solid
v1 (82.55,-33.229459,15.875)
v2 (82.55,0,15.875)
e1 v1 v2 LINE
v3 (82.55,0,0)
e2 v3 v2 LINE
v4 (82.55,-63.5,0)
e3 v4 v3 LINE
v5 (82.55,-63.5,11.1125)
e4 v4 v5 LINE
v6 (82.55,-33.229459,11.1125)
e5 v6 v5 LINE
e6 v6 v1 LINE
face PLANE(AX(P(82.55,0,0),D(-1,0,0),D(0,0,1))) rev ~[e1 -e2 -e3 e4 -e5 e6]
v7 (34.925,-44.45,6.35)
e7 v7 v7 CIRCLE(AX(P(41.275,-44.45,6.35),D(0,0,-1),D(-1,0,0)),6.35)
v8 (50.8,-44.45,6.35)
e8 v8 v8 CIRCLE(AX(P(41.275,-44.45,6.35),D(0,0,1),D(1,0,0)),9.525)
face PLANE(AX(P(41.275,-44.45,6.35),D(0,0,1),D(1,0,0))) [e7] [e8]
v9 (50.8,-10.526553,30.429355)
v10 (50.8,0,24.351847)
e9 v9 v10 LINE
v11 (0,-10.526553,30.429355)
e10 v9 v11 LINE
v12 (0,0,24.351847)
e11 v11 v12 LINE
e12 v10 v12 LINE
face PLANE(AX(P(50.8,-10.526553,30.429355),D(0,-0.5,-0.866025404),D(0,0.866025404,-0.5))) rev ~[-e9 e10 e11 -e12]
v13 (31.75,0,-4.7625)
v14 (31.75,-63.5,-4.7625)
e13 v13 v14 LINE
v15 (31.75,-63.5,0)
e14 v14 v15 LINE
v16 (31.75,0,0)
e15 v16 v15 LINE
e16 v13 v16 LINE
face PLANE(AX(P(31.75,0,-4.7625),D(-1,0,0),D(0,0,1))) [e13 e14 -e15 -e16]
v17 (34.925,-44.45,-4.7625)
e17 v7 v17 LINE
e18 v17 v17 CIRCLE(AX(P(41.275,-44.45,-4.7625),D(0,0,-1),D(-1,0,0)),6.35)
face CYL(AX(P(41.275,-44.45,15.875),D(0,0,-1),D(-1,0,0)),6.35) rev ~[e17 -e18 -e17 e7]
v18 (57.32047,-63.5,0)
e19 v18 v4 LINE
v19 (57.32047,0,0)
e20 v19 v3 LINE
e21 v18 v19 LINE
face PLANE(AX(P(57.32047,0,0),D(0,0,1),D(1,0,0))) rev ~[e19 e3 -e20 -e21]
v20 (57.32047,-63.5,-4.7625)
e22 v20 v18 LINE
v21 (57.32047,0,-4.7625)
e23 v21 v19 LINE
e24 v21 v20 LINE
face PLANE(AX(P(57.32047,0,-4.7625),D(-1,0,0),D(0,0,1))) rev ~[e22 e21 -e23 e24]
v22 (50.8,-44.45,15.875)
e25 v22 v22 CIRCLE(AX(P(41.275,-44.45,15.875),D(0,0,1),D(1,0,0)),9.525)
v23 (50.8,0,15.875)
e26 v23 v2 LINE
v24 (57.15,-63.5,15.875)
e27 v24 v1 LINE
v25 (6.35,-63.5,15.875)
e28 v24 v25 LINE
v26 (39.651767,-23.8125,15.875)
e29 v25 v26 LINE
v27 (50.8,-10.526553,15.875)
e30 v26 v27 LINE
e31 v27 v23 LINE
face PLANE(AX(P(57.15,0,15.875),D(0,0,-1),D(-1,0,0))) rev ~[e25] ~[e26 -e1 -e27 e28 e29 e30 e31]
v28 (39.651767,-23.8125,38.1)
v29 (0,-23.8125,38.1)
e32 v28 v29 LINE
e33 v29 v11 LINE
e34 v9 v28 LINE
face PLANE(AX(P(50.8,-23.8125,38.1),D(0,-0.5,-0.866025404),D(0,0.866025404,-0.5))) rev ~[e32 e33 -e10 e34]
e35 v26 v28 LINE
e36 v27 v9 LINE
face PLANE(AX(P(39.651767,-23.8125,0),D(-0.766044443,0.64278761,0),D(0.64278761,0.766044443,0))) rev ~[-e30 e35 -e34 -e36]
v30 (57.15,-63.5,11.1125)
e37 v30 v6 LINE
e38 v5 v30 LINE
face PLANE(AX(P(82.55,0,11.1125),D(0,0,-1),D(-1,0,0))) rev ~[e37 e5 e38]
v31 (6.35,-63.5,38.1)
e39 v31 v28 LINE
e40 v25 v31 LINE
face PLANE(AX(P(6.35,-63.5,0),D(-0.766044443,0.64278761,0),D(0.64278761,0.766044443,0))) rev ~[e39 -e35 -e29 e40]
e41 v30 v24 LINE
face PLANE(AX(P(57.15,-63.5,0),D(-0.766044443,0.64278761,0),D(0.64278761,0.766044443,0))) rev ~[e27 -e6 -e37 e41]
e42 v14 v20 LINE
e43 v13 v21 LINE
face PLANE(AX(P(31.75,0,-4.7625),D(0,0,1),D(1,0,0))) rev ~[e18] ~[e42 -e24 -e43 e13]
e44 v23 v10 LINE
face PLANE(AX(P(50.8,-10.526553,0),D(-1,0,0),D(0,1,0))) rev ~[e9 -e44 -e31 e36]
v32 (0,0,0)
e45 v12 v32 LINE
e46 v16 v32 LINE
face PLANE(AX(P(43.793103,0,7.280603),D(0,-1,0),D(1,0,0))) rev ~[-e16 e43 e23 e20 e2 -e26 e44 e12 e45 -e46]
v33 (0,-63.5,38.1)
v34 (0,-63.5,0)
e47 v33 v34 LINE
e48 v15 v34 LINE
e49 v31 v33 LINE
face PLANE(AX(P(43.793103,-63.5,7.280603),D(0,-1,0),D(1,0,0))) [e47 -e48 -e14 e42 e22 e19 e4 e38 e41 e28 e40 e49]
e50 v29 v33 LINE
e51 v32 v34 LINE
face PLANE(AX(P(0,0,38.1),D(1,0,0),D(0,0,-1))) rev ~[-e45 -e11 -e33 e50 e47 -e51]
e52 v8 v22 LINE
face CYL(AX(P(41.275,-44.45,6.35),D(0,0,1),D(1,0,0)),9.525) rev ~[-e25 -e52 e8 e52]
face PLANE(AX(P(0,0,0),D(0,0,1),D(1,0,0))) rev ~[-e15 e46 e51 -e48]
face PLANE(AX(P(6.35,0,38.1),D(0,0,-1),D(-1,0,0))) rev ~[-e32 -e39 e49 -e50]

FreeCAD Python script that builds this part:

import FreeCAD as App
import Part
import Sketcher
Q = App.Units.Quantity

doc = App.newDocument("Part")
body = doc.addObject("PartDesign::Body", "Body")

# Sketch on XZ plane
sketch1 = body.newObject("Sketcher::SketchObject", "Sketch")
sketch1.AttachmentSupport = (doc.getObject("XZ_Plane"), [""])
sketch1.MapMode = "FlatFace"
sketch1.addGeometry([
    Part.LineSegment(App.Vector(82.5, 0, 0), App.Vector(82.5, 11.1, 0)),  # 0
    Part.LineSegment(App.Vector(82.5, 11.1, 0), App.Vector(57.1, 11.1, 0)),  # 1
    Part.LineSegment(App.Vector(57.1, 11.1, 0), App.Vector(57.1, 15.9, 0)),  # 2
    Part.LineSegment(App.Vector(57.1, 15.9, 0), App.Vector(6.3, 15.9, 0)),  # 3
    Part.LineSegment(App.Vector(6.3, 15.9, 0), App.Vector(6.3, 38.1, 0)),  # 4
    Part.LineSegment(App.Vector(6.3, 38.1, 0), App.Vector(0, 38.1, 0)),  # 5
    Part.LineSegment(App.Vector(0, 38.1, 0), App.Vector(0, 0, 0)),  # 6
    Part.LineSegment(App.Vector(0, 0, 0), App.Vector(31.8, 0, 0)),  # 7
    Part.LineSegment(App.Vector(31.8, 0, 0), App.Vector(31.8, -4.8, 0)),  # 8
    Part.LineSegment(App.Vector(31.8, -4.8, 0), App.Vector(57.3, -4.8, 0)),  # 9
    Part.LineSegment(App.Vector(57.3, -4.8, 0), App.Vector(57.3, 0, 0)),  # 10
    Part.LineSegment(App.Vector(57.3, 0, 0), App.Vector(82.5, 0, 0)),  # 11
], False)
sketch1.addConstraint([
    Sketcher.Constraint("Coincident", 0, 2, 1, 1),
    Sketcher.Constraint("Coincident", 1, 2, 2, 1),
    Sketcher.Constraint("Coincident", 2, 2, 3, 1),
    Sketcher.Constraint("Coincident", 3, 2, 4, 1),
    Sketcher.Constraint("Coincident", 4, 2, 5, 1),
    Sketcher.Constraint("Coincident", 5, 2, 6, 1),
    Sketcher.Constraint("Coincident", 6, 2, 7, 1),
    Sketcher.Constraint("Coincident", 7, 2, 8, 1),
    Sketcher.Constraint("Coincident", 8, 2, 9, 1),
    Sketcher.Constraint("Coincident", 9, 2, 10, 1),
    Sketcher.Constraint("Coincident", 10, 2, 11, 1),
    Sketcher.Constraint("Coincident", 11, 2, 0, 1),
    Sketcher.Constraint("Vertical", 0),
    Sketcher.Constraint("Horizontal", 1),
    Sketcher.Constraint("Vertical", 2),
    Sketcher.Constraint("Horizontal", 3),
    Sketcher.Constraint("Vertical", 4),
    Sketcher.Constraint("Horizontal", 5),
    Sketcher.Constraint("Vertical", 6),
    Sketcher.Constraint("Horizontal", 7),
    Sketcher.Constraint("Vertical", 8),
    Sketcher.Constraint("Horizontal", 9),
    Sketcher.Constraint("Vertical", 10),
    Sketcher.Constraint("Horizontal", 11),
    Sketcher.Constraint("Coincident", 6, 2, -1, 1),
    Sketcher.Constraint("PointOnObject", 10, 2, -1),
    Sketcher.Constraint("Equal", 2, 8),
    Sketcher.Constraint("DistanceX", 1, 2, 1, 1, Q("1 in")),
    Sketcher.Constraint("DistanceX", 3, 2, 3, 1, Q("2 in")),
    Sketcher.Constraint("DistanceY", 6, 2, 6, 1, Q("1.5 in")),
    Sketcher.Constraint("DistanceX", 7, 2, 1, 2, Q("1 in")),
    Sketcher.Constraint("DistanceX", 5, 2, 5, 1, Q("0.25 in")),
    Sketcher.Constraint("DistanceY", 0, 1, 0, 2, Q("0.4375 in")),
    Sketcher.Constraint("DistanceY", 2, 1, 2, 2, Q("0.1875 in")),
    Sketcher.Constraint("DistanceX", 9, 1, 9, 2, 25.57047),
])
pad1 = body.newObject("PartDesign::Pad", "Pad")
pad1.Profile = sketch1
pad1.Length = Q("2.5 in")

# Sketch on XY plane
sketch2 = body.newObject("Sketcher::SketchObject", "Sketch001")
sketch2.AttachmentSupport = (doc.getObject("XY_Plane"), [""])
sketch2.MapMode = "FlatFace"
sketch2.addGeometry([
    Part.LineSegment(App.Vector(83, -33, 0), App.Vector(83, 0, 0)),  # 0
    Part.LineSegment(App.Vector(83, 0, 0), App.Vector(51, 0, 0)),  # 1
    Part.LineSegment(App.Vector(51, 0, 0), App.Vector(51, -11, 0)),  # 2
    Part.LineSegment(App.Vector(51, -11, 0), App.Vector(40, -24, 0)),  # 3
    Part.LineSegment(App.Vector(40, -24, 0), App.Vector(6, -64, 0)),  # 4
    Part.LineSegment(App.Vector(6, -64, 0), App.Vector(57, -64, 0)),  # 5
    Part.LineSegment(App.Vector(57, -64, 0), App.Vector(83, -33, 0)),  # 6
], False)
sketch2.addConstraint([
    Sketcher.Constraint("Coincident", 0, 2, 1, 1),
    Sketcher.Constraint("Coincident", 1, 2, 2, 1),
    Sketcher.Constraint("Coincident", 2, 2, 3, 1),
    Sketcher.Constraint("Coincident", 3, 2, 4, 1),
    Sketcher.Constraint("Coincident", 4, 2, 5, 1),
    Sketcher.Constraint("Coincident", 5, 2, 6, 1),
    Sketcher.Constraint("Coincident", 6, 2, 0, 1),
    Sketcher.Constraint("Vertical", 0),
    Sketcher.Constraint("Horizontal", 1),
    Sketcher.Constraint("Vertical", 2),
    Sketcher.Constraint("Horizontal", 5),
    Sketcher.Constraint("PointOnObject", 0, 2, -1),
    Sketcher.Constraint("Parallel", 3, 4),
    Sketcher.Constraint("Parallel", 4, 6),
    Sketcher.Constraint("DistanceX", 5, 1, 5, 2, Q("2 in")),
    Sketcher.Constraint("DistanceX", -1, 1, 1, 2, Q("2 in")),
    Sketcher.Constraint("Angle", 3, Q("-130 deg")),
    Sketcher.Constraint("DistanceX", 4, 2, 0, 2, Q("3 in")),
    Sketcher.Constraint("DistanceX", 1, 2, 1, 1, Q("1.25 in")),
    Sketcher.Constraint("DistanceY", 4, 2, -1, 1, Q("2.5 in")),
    Sketcher.Constraint("DistanceY", 3, 2, -1, 1, Q("0.9375 in")),
])
pad2 = body.newObject("PartDesign::Pad", "Pad001")
pad2.Profile = sketch2
pad2.Length = Q("0.625 in")

# Sketch on XY plane
sketch3 = body.newObject("Sketcher::SketchObject", "Sketch002")
sketch3.AttachmentSupport = (doc.getObject("XY_Plane"), [""])
sketch3.MapMode = "FlatFace"
sketch3.addGeometry([
    Part.LineSegment(App.Vector(6, 0, 0), App.Vector(6, -64, 0)),  # 0
    Part.LineSegment(App.Vector(6, -64, 0), App.Vector(40, -24, 0)),  # 1
    Part.LineSegment(App.Vector(40, -24, 0), App.Vector(51, -11, 0)),  # 2
    Part.LineSegment(App.Vector(51, -11, 0), App.Vector(51, 0, 0)),  # 3
    Part.LineSegment(App.Vector(51, 0, 0), App.Vector(6, 0, 0)),  # 4
], False)
sketch3.addConstraint([
    Sketcher.Constraint("Coincident", 0, 2, 1, 1),
    Sketcher.Constraint("Coincident", 1, 2, 2, 1),
    Sketcher.Constraint("Coincident", 2, 2, 3, 1),
    Sketcher.Constraint("Coincident", 3, 2, 4, 1),
    Sketcher.Constraint("Coincident", 4, 2, 0, 1),
    Sketcher.Constraint("Vertical", 0),
    Sketcher.Constraint("Vertical", 3),
    Sketcher.Constraint("Horizontal", 4),
    Sketcher.Constraint("PointOnObject", 3, 2, -1),
    Sketcher.Constraint("Parallel", 1, 2),
    Sketcher.Constraint("DistanceY", 0, 2, 0, 1, Q("2.5 in")),
    Sketcher.Constraint("DistanceX", -1, 1, 2, 2, Q("2 in")),
    Sketcher.Constraint("Angle", 1, Q("50 deg")),
    Sketcher.Constraint("DistanceX", 4, 2, 4, 1, Q("1.75 in")),
    Sketcher.Constraint("DistanceY", 1, 2, -1, 1, Q("0.9375 in")),
])
pad3 = body.newObject("PartDesign::Pad", "Pad002")
pad3.Profile = sketch3
pad3.Length = Q("1.5 in")

# Sketch on XY plane
sketch4 = body.newObject("Sketcher::SketchObject", "Sketch003")
sketch4.AttachmentSupport = (doc.getObject("XY_Plane"), [""])
sketch4.MapMode = "FlatFace"
sketch4.AttachmentOffset = App.Placement(App.Vector(0, 0, 0.625 * 25.4), App.Rotation())
sketch4.addGeometry(Part.Circle(App.Vector(41, -44, 0), App.Vector(0, 0, 1), 6), False)
sketch4.addConstraint([
    Sketcher.Constraint("Diameter", 0, Q("0.5 in")),
    Sketcher.Constraint("DistanceY", 0, 3, -1, 1, Q("1.75 in")),
    Sketcher.Constraint("DistanceX", -1, 1, 0, 3, Q("1.625 in")),
])
doc.recompute()
hole = body.newObject("PartDesign::Hole", "Hole")
hole.Profile = sketch4
hole.ThreadType = "None"
hole.Diameter = Q("0.5 in")
hole.DepthType = "ThroughAll"
hole.HoleCutType = "Counterbore"
hole.HoleCutDiameter = Q("0.75 in")
hole.HoleCutDepth = Q("0.375 in")

# Sketch on YZ plane
sketch5 = body.newObject("Sketcher::SketchObject", "Sketch004")
sketch5.AttachmentSupport = (doc.getObject("YZ_Plane"), [""])
sketch5.MapMode = "FlatFace"
sketch5.AttachmentOffset = App.Placement(App.Vector(0, 0, 2 * 25.4), App.Rotation())
sketch5.addGeometry([
    Part.LineSegment(App.Vector(-24, 38, 0), App.Vector(-11, 30, 0)),
    Part.LineSegment(App.Vector(-11, 30, 0), App.Vector(0, 24, 0)),
    Part.LineSegment(App.Vector(0, 24, 0), App.Vector(0, 38, 0)),
    Part.LineSegment(App.Vector(0, 38, 0), App.Vector(-24, 38, 0)),
], False)
sketch5.addConstraint([
    Sketcher.Constraint("Coincident", 0, 2, 1, 1),
    Sketcher.Constraint("Coincident", 1, 2, 2, 1),
    Sketcher.Constraint("Coincident", 2, 2, 3, 1),
    Sketcher.Constraint("Coincident", 3, 2, 0, 1),
    Sketcher.Constraint("Vertical", 2),
    Sketcher.Constraint("Horizontal", 3),
    Sketcher.Constraint("PointOnObject", 1, 2, -2),
    Sketcher.Constraint("Parallel", 0, 1),
    Sketcher.Constraint("Angle", 0, Q("-30 deg")),
    Sketcher.Constraint("DistanceY", -1, 1, 2, 2, Q("1.5 in")),
    Sketcher.Constraint("DistanceX", 3, 2, 3, 1, Q("0.9375 in")),
    Sketcher.Constraint("Distance", 0, 15.34129),
])
pocket1 = body.newObject("PartDesign::Pocket", "Pocket")
pocket1.Profile = sketch5
pocket1.Length = Q("2 in")

doc.recompute()
